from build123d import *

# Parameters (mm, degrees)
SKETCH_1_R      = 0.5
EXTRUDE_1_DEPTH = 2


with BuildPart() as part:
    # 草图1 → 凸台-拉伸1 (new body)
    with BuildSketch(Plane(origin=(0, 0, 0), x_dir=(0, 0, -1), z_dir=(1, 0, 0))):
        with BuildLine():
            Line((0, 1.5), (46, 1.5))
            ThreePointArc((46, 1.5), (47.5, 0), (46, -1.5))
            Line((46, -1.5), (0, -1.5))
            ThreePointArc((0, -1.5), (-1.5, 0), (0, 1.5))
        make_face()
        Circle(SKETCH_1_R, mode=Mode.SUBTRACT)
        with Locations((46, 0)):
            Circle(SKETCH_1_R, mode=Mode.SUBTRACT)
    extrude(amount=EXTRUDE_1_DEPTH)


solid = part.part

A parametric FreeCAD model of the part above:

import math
import FreeCAD as App
import Part
import Sketcher

V = App.Vector

doc = App.newDocument("Part")
body = doc.addObject("PartDesign::Body", "Body")

sketch1 = body.newObject("Sketcher::SketchObject", "Sketch")
sketch1.AttachmentSupport = (doc.getObject("YZ_Plane"), [""])
sketch1.MapMode = "FlatFace"
sketch1.addGeometry([
    Part.LineSegment(V(1.5, -46, 0), V(1.5, 0, 0)),
    Part.ArcOfCircle(Part.Circle(V(0, 0, 0), V(0, 0, 1), 1.5), math.radians(0), math.radians(180)),
    Part.LineSegment(V(-1.5, 0, 0), V(-1.5, -46, 0)),
    Part.ArcOfCircle(Part.Circle(V(0, -46, 0), V(0, 0, 1), 1.5), math.radians(180), math.radians(360)),
    Part.Circle(V(0, -46, 0), V(0, 0, 1), 0.5),
    Part.Circle(V(0, 0, 0), V(0, 0, 1), 0.5),
], False)
sketch1.addConstraint([
    Sketcher.Constraint("Tangent", 0, 2, 1, 1),
    Sketcher.Constraint("Tangent", 1, 2, 2, 1),
    Sketcher.Constraint("Tangent", 2, 2, 3, 1),
    Sketcher.Constraint("Tangent", 3, 2, 0, 1),
    Sketcher.Constraint("Vertical", 0),
    Sketcher.Constraint("Vertical", 2),
    Sketcher.Constraint("Coincident", 1, 3, -1, 1),
    Sketcher.Constraint("Coincident", 5, 3, -1, 1),
    Sketcher.Constraint("Coincident", 4, 3, 3, 3),
    Sketcher.Constraint("Equal", 4, 5),
    Sketcher.Constraint("Diameter", 4, 1.0),
    Sketcher.Constraint("Radius", 1, 1.5),
    Sketcher.Constraint("DistanceY", 0, 1, 0, 2, 46.0),
])
pad1 = body.newObject("PartDesign::Pad", "Pad")
pad1.Profile = sketch1
pad1.Length = 2

doc.recompute()
